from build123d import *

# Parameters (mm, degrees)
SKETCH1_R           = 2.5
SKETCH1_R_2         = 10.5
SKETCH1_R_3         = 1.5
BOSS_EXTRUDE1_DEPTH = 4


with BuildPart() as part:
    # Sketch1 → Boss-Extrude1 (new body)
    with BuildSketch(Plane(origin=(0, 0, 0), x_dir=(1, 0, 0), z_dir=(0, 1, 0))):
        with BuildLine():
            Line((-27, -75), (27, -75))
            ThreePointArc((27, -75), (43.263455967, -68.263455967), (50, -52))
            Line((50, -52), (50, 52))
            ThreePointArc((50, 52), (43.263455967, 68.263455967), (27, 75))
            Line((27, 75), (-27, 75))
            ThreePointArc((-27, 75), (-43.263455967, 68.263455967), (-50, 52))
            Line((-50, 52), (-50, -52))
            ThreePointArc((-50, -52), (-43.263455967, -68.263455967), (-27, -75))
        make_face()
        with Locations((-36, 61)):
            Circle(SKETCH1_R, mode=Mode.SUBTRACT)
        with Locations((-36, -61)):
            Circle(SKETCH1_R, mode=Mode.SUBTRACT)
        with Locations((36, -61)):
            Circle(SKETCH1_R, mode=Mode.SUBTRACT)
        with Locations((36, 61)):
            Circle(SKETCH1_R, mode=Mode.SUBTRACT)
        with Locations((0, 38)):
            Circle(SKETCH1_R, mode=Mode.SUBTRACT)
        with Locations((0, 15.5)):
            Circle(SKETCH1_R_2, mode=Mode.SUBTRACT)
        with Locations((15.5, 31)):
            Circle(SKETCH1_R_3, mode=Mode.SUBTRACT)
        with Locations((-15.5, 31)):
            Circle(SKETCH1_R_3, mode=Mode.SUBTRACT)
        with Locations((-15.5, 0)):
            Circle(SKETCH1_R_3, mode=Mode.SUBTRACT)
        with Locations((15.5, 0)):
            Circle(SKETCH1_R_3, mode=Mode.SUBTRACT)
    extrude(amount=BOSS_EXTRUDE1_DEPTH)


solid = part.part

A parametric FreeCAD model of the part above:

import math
import FreeCAD as App
import Part
import Sketcher
from FreeCAD import Vector
Q = App.Units.Quantity

doc = App.newDocument("Part")
body = doc.addObject("PartDesign::Body", "Body")

# Sketch on XZ plane
sketch1 = doc.addObject("Sketcher::SketchObject", "Sketch")
body.addObject(sketch1)
sketch1.AttachmentSupport = (doc.XZ_Plane, [""])
sketch1.MapMode = "FlatFace"
sketch1.addGeometry([
    Part.LineSegment(Vector(-27, 75, 0), Vector(27, 75, 0)),  # 0
    Part.ArcOfCircle(Part.Circle(Vector(27, 52, 0), Vector(0, 0, 1), 23), math.radians(0), math.radians(90)),  # 1
    Part.LineSegment(Vector(50, 52, 0), Vector(50, -52, 0)),  # 2
    Part.ArcOfCircle(Part.Circle(Vector(27, -52, 0), Vector(0, 0, 1), 23), math.radians(-90), math.radians(0)),  # 3
    Part.LineSegment(Vector(27, -75, 0), Vector(-27, -75, 0)),  # 4
    Part.ArcOfCircle(Part.Circle(Vector(-27, -52, 0), Vector(0, 0, 1), 23), math.radians(-180), math.radians(-90)),  # 5
    Part.LineSegment(Vector(-50, -52, 0), Vector(-50, 52, 0)),  # 6
    Part.ArcOfCircle(Part.Circle(Vector(-27, 52, 0), Vector(0, 0, 1), 23), math.radians(90), math.radians(180)),  # 7
    Part.Circle(Vector(-36, 61, 0), Vector(0, 0, 1), 2.5),  # 8
    Part.Circle(Vector(36, 61, 0), Vector(0, 0, 1), 2.5),  # 9
    Part.Circle(Vector(-15.5, 0, 0), Vector(0, 0, 1), 1.5),  # 10
    Part.Circle(Vector(-15.5, -31, 0), Vector(0, 0, 1), 1.5),  # 11
    Part.Circle(Vector(-36, -61, 0), Vector(0, 0, 1), 2.5),  # 12
    Part.Circle(Vector(0, -15.5, 0), Vector(0, 0, 1), 10.5),  # 13
    Part.Circle(Vector(15.5, 0, 0), Vector(0, 0, 1), 1.5),  # 14
    Part.Circle(Vector(15.5, -31, 0), Vector(0, 0, 1), 1.5),  # 15
    Part.Circle(Vector(0, -38, 0), Vector(0, 0, 1), 2.5),  # 16
    Part.Circle(Vector(36, -61, 0), Vector(0, 0, 1), 2.5),  # 17
], False)
sketch1.addConstraint([
    Sketcher.Constraint("Tangent", 0, 2, 1, 2),
    Sketcher.Constraint("Tangent", 1, 1, 2, 1),
    Sketcher.Constraint("Tangent", 2, 2, 3, 2),
    Sketcher.Constraint("Tangent", 3, 1, 4, 1),
    Sketcher.Constraint("Tangent", 4, 2, 5, 2),
    Sketcher.Constraint("Tangent", 5, 1, 6, 1),
    Sketcher.Constraint("Tangent", 6, 2, 7, 2),
    Sketcher.Constraint("Tangent", 7, 1, 0, 1),
    Sketcher.Constraint("Horizontal", 0),
    Sketcher.Constraint("Vertical", 2),
    Sketcher.Constraint("Horizontal", 4),
    Sketcher.Constraint("Vertical", 6),
    Sketcher.Constraint("Equal", 1, 3),
    Sketcher.Constraint("Equal", 3, 5),
    Sketcher.Constraint("Equal", 5, 7),
    Sketcher.Constraint("Equal", 8, 9),
    Sketcher.Constraint("Equal", 10, 11),
    Sketcher.Constraint("Equal", 9, 12),
    Sketcher.Constraint("Equal", 11, 14),
    Sketcher.Constraint("Equal", 14, 15),
    Sketcher.Constraint("Equal", 12, 16),
    Sketcher.Constraint("Equal", 16, 17),
    Sketcher.Constraint("Symmetric", 1, 3, 5, 3, -1, 1),
    Sketcher.Constraint("Symmetric", 9, 3, 12, 3, -1, 1),
    Sketcher.Constraint("Symmetric", 10, 3, 14, 3, -1, 1),
    Sketcher.Constraint("Symmetric", 8, 3, 17, 3, -1, 1),
    Sketcher.Constraint("Symmetric", 8, 3, 9, 3, -2),
    Sketcher.Constraint("Symmetric", 11, 3, 15, 3, -2),
    Sketcher.Constraint("PointOnObject", 10, 3, -1),
    Sketcher.Constraint("PointOnObject", 13, 3, -2),
    Sketcher.Constraint("PointOnObject", 16, 3, -2),
    Sketcher.Constraint("Vertical", 10, 3, 11, 3),
    Sketcher.Constraint("Diameter", 8, Q("5 mm")),
    Sketcher.Constraint("Diameter", 10, Q("3 mm")),
    Sketcher.Constraint("Diameter", 13, Q("21 mm")),
    Sketcher.Constraint("Radius", 1, Q("23 mm")),
    Sketcher.Constraint("DistanceX", 0, 1, 0, 2, Q("54 mm")),
    Sketcher.Constraint("DistanceY", 2, 2, 2, 1, Q("104 mm")),
    Sketcher.Constraint("DistanceX", 8, 3, -1, 1, Q("36 mm")),
    Sketcher.Constraint("DistanceY", -1, 1, 8, 3, Q("61 mm")),
    Sketcher.Constraint("DistanceY", 11, 3, -1, 1, Q("31 mm")),
    Sketcher.Constraint("DistanceY", 16, 3, -1, 1, Q("38 mm")),
    Sketcher.Constraint("DistanceX", 10, 3, 14, 3, Q("31 mm")),
    Sketcher.Constraint("DistanceY", 13, 3, -1, 1, Q("15.5 mm")),
])
pad1 = doc.addObject("PartDesign::Pad", "Pad")
body.addObject(pad1)
pad1.Profile = sketch1
pad1.Length = 4
pad1.Reversed = True

doc.recompute()
